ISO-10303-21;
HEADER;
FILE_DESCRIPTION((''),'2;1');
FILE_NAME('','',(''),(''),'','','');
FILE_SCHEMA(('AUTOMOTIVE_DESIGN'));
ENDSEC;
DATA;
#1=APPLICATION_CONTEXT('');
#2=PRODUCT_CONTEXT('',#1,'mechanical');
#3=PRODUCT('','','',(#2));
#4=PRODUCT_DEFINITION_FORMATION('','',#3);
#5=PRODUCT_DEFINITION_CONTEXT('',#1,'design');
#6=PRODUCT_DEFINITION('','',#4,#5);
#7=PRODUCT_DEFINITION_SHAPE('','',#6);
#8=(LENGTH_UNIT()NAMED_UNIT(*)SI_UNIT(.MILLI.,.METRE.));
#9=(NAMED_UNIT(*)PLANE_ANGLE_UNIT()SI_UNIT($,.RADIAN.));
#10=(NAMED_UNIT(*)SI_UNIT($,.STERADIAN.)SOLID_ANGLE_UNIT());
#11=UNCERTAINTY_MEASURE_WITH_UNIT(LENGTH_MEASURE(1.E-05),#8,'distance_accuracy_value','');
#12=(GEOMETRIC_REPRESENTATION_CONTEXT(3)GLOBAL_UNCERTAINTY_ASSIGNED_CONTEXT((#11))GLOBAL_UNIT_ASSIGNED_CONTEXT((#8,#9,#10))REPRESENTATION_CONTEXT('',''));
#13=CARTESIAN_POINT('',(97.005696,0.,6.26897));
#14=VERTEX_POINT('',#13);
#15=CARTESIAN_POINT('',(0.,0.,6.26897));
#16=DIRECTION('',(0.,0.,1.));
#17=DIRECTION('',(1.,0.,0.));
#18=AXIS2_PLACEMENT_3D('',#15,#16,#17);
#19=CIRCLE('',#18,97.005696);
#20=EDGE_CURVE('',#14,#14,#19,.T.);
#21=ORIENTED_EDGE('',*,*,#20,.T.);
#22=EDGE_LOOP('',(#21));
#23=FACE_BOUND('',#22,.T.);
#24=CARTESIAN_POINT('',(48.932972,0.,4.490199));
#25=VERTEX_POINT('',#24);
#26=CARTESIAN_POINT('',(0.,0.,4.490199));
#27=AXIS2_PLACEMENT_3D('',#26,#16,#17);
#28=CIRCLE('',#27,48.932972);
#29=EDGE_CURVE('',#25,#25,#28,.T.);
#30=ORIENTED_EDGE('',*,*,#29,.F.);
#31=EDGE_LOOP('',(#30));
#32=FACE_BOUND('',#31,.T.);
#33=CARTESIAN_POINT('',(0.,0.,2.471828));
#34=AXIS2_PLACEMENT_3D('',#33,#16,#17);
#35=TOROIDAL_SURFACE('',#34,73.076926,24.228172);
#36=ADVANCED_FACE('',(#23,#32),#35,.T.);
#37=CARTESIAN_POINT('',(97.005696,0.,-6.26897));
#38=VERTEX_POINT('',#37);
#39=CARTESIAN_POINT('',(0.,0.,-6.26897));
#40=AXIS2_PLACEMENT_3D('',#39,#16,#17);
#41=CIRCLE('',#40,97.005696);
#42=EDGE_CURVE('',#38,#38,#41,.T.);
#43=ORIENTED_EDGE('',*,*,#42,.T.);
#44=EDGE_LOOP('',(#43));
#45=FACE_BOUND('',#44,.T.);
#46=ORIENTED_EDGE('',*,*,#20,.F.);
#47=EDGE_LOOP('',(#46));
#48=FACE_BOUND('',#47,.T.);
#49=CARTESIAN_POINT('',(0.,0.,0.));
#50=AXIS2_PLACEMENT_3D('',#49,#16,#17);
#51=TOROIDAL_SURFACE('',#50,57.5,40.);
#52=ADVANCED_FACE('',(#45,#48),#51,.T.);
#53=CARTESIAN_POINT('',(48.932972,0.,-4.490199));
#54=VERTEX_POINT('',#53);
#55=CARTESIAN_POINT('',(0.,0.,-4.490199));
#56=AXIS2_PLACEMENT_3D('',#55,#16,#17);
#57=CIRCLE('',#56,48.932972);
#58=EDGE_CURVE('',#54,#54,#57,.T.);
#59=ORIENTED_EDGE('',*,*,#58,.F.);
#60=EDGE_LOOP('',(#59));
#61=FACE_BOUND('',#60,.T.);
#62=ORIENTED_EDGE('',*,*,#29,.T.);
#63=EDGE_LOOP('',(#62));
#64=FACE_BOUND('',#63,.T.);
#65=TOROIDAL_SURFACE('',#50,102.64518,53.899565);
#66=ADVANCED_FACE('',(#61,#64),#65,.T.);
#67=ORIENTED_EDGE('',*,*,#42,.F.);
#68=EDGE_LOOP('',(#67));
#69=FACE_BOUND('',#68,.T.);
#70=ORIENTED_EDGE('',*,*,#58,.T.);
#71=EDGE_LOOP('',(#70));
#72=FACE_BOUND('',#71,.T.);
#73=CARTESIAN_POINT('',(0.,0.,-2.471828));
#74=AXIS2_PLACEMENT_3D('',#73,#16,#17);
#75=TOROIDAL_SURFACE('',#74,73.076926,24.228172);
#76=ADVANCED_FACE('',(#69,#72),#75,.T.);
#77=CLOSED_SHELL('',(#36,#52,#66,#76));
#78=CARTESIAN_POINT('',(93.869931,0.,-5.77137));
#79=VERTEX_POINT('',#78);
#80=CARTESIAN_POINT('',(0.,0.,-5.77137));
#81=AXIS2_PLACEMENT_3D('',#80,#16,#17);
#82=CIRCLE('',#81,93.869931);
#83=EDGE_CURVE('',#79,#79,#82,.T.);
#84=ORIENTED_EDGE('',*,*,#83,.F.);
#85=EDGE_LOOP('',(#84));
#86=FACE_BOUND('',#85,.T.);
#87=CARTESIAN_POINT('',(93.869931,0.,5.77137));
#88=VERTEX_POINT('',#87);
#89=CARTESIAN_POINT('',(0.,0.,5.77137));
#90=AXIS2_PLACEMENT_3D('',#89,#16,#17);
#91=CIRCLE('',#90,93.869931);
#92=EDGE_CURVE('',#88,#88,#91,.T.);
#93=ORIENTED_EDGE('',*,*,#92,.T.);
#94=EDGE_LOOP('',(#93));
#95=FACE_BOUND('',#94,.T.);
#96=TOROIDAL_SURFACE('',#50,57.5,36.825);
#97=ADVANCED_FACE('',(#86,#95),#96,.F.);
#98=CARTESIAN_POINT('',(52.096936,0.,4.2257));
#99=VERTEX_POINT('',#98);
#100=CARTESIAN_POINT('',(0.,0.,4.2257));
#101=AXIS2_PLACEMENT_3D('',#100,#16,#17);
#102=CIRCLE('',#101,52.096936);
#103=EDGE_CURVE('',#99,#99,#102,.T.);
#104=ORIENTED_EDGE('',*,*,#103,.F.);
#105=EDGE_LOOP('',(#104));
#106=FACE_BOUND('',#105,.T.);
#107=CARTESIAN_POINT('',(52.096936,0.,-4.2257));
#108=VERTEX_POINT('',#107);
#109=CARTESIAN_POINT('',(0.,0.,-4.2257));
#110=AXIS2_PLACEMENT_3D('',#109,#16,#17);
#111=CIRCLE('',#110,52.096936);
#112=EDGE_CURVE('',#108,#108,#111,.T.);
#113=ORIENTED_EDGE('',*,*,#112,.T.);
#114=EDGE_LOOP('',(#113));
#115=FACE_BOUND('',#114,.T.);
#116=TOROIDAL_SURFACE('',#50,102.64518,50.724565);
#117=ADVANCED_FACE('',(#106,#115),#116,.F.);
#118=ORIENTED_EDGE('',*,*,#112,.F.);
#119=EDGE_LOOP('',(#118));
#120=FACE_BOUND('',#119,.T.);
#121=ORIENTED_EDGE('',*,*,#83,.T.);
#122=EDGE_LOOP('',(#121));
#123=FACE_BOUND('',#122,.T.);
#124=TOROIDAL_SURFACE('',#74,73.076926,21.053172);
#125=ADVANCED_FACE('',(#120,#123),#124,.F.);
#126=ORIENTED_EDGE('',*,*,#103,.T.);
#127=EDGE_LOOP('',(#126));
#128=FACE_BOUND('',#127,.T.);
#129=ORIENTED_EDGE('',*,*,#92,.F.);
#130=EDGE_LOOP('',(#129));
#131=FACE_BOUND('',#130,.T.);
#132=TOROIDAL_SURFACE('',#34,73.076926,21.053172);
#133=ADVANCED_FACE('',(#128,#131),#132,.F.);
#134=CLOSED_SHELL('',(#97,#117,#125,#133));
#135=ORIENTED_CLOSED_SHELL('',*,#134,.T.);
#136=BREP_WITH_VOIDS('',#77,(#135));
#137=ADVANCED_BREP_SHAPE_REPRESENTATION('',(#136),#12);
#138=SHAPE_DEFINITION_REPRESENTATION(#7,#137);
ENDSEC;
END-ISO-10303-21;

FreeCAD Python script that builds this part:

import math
import FreeCAD as App
import Part
import Sketcher
Q = App.Units.Quantity

doc = App.newDocument("Part")
params = doc.addObject("Spreadsheet::Sheet", "Params")
for row, (alias, value) in enumerate([
    ("sketch1_radius", "40 mm"),
    ("revolution_angle", "360 deg"),
], start=1):
    params.set(f"A{row}", alias)
    params.set(f"B{row}", "=" + value)
    params.setAlias(f"B{row}", alias)

body = doc.addObject("PartDesign::Body", "Body")

sketch1 = body.newObject("Sketcher::SketchObject", "Sketch")
sketch1.AttachmentSupport = (doc.getObject("YZ_Plane"), [""])
sketch1.MapMode = "FlatFace"
sketch1.addGeometry(Part.ArcOfCircle(Part.Circle(App.Vector(57, 0, 0), App.Vector(0, 0, 1), 40), math.radians(-9.02), math.radians(9.02)), False)
sketch1.addGeometry(Part.ArcOfCircle(Part.Circle(App.Vector(73, 2, 0), App.Vector(0, 0, 1), 24), math.radians(9), math.radians(90)), False)
sketch1.addGeometry(Part.ArcOfCircle(Part.Circle(App.Vector(73, 2, 0), App.Vector(0, 0, 1), 24), math.radians(90), math.radians(175)), False)
sketch1.addGeometry(Part.ArcOfCircle(Part.Circle(App.Vector(103, 0, 0), App.Vector(0, 0, 1), 54), math.radians(175.22), math.radians(184.78)), False)
sketch1.addGeometry(Part.ArcOfCircle(Part.Circle(App.Vector(73, -2, 0), App.Vector(0, 0, 1), 24), math.radians(-175), math.radians(-90)), False)
sketch1.addGeometry(Part.ArcOfCircle(Part.Circle(App.Vector(73, -2, 0), App.Vector(0, 0, 1), 24), math.radians(-90), math.radians(-9)), False)
sketch1.addGeometry(Part.ArcOfCircle(Part.Circle(App.Vector(57, 0, 0), App.Vector(0, 0, 1), 37), math.radians(-9.02), math.radians(9.02)), False)
sketch1.addGeometry(Part.ArcOfCircle(Part.Circle(App.Vector(73, -2, 0), App.Vector(0, 0, 1), 21), math.radians(-90), math.radians(-9)), False)
sketch1.addGeometry(Part.ArcOfCircle(Part.Circle(App.Vector(73, -2, 0), App.Vector(0, 0, 1), 21), math.radians(-175), math.radians(-90)), False)
sketch1.addGeometry(Part.ArcOfCircle(Part.Circle(App.Vector(103, 0, 0), App.Vector(0, 0, 1), 51), math.radians(175.22), math.radians(184.78)), False)
sketch1.addGeometry(Part.ArcOfCircle(Part.Circle(App.Vector(73, 2, 0), App.Vector(0, 0, 1), 21), math.radians(90), math.radians(175)), False)
sketch1.addGeometry(Part.ArcOfCircle(Part.Circle(App.Vector(73, 2, 0), App.Vector(0, 0, 1), 21), math.radians(9), math.radians(90)), False)
sketch1.addConstraint(Sketcher.Constraint("Tangent", 0, 2, 1, 1))
sketch1.addConstraint(Sketcher.Constraint("Tangent", 1, 2, 2, 1))
sketch1.addConstraint(Sketcher.Constraint("Tangent", 2, 2, 3, 1))
sketch1.addConstraint(Sketcher.Constraint("Tangent", 3, 2, 4, 1))
sketch1.addConstraint(Sketcher.Constraint("Tangent", 4, 2, 5, 1))
sketch1.addConstraint(Sketcher.Constraint("Tangent", 5, 2, 0, 1))
sketch1.addConstraint(Sketcher.Constraint("Tangent", 6, 1, 7, 2))
sketch1.addConstraint(Sketcher.Constraint("Tangent", 7, 1, 8, 2))
sketch1.addConstraint(Sketcher.Constraint("Tangent", 8, 1, 9, 2))
sketch1.addConstraint(Sketcher.Constraint("Tangent", 9, 1, 10, 2))
sketch1.addConstraint(Sketcher.Constraint("Tangent", 10, 1, 11, 2))
sketch1.addConstraint(Sketcher.Constraint("Tangent", 11, 1, 6, 2))
sketch1.addConstraint(Sketcher.Constraint("Coincident", 6, 3, 0, 3))
sketch1.addConstraint(Sketcher.Constraint("Coincident", 7, 3, 4, 3))
sketch1.addConstraint(Sketcher.Constraint("Coincident", 9, 3, 3, 3))
sketch1.addConstraint(Sketcher.Constraint("Coincident", 10, 3, 1, 3))
sketch1.addConstraint(Sketcher.Constraint("Equal", 1, 2))
sketch1.addConstraint(Sketcher.Constraint("Equal", 2, 4))
sketch1.addConstraint(Sketcher.Constraint("Equal", 4, 5))
sketch1.addConstraint(Sketcher.Constraint("Equal", 7, 8))
sketch1.addConstraint(Sketcher.Constraint("Symmetric", 1, 3, 4, 3, -1))
sketch1.addConstraint(Sketcher.Constraint("Vertical", 11, 3, 1, 2))
sketch1.addConstraint(Sketcher.Constraint("Vertical", 1, 2, 4, 2))
sketch1.addConstraint(Sketcher.Constraint("Vertical", 4, 2, 7, 1))
sketch1.addConstraint(Sketcher.Constraint("Vertical", 7, 1, 10, 1))
sketch1.addConstraint(Sketcher.Constraint("Radius", 0, Q("40 mm")))
sketch1.addConstraint(Sketcher.Constraint("Radius", 6, Q("36.825 mm")))
sketch1.addConstraint(Sketcher.Constraint("DistanceX", -1, 1, 0, 3, Q("57.5 mm")))
sketch1.addConstraint(Sketcher.Constraint("DistanceY", -1, 1, 1, 2, Q("26.7 mm")))
sketch1.addConstraint(Sketcher.Constraint("Radius", 1, Q("24.228172 mm")))
sketch1.addConstraint(Sketcher.Constraint("Radius", 3, Q("53.899565 mm")))
sketch1.setExpression("Constraints[25]", "Params.sketch1_radius")
revolution = body.newObject("PartDesign::Revolution", "Revolution")
revolution.Profile = sketch1
revolution.ReferenceAxis = (sketch1, ["V_Axis"])
revolution.setExpression("Angle", "Params.revolution_angle")

doc.recompute()
